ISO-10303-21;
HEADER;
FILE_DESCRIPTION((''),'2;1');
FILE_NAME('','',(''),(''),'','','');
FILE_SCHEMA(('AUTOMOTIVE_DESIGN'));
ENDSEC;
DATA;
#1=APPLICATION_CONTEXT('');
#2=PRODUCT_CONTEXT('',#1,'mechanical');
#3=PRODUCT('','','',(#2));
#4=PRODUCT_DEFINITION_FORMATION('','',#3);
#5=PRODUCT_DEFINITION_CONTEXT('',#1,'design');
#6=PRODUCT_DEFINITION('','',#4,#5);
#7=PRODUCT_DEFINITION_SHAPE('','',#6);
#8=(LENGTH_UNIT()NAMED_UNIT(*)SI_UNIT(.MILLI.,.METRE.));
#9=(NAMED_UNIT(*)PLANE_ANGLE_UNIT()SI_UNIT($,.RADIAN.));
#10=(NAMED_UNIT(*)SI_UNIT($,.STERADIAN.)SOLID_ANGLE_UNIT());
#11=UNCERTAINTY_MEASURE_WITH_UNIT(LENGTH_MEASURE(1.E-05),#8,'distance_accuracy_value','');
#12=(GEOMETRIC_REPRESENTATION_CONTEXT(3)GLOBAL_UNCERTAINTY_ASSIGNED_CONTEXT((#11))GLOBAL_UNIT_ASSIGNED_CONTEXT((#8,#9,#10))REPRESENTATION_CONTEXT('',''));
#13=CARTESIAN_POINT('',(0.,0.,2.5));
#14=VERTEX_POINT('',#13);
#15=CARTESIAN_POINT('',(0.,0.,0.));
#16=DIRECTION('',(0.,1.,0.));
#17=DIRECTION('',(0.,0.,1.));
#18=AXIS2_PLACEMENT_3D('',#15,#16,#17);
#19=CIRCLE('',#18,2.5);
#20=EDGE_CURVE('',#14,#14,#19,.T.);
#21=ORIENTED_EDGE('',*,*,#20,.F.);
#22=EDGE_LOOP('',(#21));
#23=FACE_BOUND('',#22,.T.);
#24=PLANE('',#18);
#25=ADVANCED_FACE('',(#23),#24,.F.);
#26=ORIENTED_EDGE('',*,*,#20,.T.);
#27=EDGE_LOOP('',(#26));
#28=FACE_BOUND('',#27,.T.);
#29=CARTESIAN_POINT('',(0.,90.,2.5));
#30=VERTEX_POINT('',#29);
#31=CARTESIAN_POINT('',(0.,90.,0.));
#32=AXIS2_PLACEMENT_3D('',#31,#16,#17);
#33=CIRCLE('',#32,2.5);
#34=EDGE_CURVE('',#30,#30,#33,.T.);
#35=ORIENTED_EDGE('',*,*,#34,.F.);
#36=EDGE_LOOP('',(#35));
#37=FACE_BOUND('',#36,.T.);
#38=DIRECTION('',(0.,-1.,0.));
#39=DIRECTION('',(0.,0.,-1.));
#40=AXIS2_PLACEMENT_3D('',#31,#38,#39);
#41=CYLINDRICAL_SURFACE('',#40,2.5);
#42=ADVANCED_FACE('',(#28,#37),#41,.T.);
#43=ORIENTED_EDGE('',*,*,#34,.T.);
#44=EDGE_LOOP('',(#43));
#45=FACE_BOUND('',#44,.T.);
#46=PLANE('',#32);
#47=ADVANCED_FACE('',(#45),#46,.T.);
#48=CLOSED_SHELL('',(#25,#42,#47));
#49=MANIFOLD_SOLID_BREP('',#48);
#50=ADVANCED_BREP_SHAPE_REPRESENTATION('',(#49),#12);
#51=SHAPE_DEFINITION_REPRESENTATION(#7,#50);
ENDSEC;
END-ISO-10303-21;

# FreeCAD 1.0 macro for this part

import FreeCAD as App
import Part
import Sketcher

V = App.Vector
Q = App.Units.Quantity

doc = App.newDocument("Part")
body = doc.addObject("PartDesign::Body", "Body")

# Sketch on XZ plane
sketch1 = body.newObject("Sketcher::SketchObject", "Sketch")
sketch1.AttachmentSupport = (doc.getObject("XZ_Plane"), [""])
sketch1.MapMode = "FlatFace"
sketch1.addGeometry(Part.Circle(V(0, 0, 0), V(0, 0, 1), 2.5), False)
sketch1.addConstraint([
    Sketcher.Constraint("Coincident", 0, 3, -1, 1),
    Sketcher.Constraint("Diameter", 0, Q("5 mm")),
])
pad1 = body.newObject("PartDesign::Pad", "Pad")
pad1.Profile = sketch1
pad1.Length = 90
pad1.Reversed = True

doc.recompute()
